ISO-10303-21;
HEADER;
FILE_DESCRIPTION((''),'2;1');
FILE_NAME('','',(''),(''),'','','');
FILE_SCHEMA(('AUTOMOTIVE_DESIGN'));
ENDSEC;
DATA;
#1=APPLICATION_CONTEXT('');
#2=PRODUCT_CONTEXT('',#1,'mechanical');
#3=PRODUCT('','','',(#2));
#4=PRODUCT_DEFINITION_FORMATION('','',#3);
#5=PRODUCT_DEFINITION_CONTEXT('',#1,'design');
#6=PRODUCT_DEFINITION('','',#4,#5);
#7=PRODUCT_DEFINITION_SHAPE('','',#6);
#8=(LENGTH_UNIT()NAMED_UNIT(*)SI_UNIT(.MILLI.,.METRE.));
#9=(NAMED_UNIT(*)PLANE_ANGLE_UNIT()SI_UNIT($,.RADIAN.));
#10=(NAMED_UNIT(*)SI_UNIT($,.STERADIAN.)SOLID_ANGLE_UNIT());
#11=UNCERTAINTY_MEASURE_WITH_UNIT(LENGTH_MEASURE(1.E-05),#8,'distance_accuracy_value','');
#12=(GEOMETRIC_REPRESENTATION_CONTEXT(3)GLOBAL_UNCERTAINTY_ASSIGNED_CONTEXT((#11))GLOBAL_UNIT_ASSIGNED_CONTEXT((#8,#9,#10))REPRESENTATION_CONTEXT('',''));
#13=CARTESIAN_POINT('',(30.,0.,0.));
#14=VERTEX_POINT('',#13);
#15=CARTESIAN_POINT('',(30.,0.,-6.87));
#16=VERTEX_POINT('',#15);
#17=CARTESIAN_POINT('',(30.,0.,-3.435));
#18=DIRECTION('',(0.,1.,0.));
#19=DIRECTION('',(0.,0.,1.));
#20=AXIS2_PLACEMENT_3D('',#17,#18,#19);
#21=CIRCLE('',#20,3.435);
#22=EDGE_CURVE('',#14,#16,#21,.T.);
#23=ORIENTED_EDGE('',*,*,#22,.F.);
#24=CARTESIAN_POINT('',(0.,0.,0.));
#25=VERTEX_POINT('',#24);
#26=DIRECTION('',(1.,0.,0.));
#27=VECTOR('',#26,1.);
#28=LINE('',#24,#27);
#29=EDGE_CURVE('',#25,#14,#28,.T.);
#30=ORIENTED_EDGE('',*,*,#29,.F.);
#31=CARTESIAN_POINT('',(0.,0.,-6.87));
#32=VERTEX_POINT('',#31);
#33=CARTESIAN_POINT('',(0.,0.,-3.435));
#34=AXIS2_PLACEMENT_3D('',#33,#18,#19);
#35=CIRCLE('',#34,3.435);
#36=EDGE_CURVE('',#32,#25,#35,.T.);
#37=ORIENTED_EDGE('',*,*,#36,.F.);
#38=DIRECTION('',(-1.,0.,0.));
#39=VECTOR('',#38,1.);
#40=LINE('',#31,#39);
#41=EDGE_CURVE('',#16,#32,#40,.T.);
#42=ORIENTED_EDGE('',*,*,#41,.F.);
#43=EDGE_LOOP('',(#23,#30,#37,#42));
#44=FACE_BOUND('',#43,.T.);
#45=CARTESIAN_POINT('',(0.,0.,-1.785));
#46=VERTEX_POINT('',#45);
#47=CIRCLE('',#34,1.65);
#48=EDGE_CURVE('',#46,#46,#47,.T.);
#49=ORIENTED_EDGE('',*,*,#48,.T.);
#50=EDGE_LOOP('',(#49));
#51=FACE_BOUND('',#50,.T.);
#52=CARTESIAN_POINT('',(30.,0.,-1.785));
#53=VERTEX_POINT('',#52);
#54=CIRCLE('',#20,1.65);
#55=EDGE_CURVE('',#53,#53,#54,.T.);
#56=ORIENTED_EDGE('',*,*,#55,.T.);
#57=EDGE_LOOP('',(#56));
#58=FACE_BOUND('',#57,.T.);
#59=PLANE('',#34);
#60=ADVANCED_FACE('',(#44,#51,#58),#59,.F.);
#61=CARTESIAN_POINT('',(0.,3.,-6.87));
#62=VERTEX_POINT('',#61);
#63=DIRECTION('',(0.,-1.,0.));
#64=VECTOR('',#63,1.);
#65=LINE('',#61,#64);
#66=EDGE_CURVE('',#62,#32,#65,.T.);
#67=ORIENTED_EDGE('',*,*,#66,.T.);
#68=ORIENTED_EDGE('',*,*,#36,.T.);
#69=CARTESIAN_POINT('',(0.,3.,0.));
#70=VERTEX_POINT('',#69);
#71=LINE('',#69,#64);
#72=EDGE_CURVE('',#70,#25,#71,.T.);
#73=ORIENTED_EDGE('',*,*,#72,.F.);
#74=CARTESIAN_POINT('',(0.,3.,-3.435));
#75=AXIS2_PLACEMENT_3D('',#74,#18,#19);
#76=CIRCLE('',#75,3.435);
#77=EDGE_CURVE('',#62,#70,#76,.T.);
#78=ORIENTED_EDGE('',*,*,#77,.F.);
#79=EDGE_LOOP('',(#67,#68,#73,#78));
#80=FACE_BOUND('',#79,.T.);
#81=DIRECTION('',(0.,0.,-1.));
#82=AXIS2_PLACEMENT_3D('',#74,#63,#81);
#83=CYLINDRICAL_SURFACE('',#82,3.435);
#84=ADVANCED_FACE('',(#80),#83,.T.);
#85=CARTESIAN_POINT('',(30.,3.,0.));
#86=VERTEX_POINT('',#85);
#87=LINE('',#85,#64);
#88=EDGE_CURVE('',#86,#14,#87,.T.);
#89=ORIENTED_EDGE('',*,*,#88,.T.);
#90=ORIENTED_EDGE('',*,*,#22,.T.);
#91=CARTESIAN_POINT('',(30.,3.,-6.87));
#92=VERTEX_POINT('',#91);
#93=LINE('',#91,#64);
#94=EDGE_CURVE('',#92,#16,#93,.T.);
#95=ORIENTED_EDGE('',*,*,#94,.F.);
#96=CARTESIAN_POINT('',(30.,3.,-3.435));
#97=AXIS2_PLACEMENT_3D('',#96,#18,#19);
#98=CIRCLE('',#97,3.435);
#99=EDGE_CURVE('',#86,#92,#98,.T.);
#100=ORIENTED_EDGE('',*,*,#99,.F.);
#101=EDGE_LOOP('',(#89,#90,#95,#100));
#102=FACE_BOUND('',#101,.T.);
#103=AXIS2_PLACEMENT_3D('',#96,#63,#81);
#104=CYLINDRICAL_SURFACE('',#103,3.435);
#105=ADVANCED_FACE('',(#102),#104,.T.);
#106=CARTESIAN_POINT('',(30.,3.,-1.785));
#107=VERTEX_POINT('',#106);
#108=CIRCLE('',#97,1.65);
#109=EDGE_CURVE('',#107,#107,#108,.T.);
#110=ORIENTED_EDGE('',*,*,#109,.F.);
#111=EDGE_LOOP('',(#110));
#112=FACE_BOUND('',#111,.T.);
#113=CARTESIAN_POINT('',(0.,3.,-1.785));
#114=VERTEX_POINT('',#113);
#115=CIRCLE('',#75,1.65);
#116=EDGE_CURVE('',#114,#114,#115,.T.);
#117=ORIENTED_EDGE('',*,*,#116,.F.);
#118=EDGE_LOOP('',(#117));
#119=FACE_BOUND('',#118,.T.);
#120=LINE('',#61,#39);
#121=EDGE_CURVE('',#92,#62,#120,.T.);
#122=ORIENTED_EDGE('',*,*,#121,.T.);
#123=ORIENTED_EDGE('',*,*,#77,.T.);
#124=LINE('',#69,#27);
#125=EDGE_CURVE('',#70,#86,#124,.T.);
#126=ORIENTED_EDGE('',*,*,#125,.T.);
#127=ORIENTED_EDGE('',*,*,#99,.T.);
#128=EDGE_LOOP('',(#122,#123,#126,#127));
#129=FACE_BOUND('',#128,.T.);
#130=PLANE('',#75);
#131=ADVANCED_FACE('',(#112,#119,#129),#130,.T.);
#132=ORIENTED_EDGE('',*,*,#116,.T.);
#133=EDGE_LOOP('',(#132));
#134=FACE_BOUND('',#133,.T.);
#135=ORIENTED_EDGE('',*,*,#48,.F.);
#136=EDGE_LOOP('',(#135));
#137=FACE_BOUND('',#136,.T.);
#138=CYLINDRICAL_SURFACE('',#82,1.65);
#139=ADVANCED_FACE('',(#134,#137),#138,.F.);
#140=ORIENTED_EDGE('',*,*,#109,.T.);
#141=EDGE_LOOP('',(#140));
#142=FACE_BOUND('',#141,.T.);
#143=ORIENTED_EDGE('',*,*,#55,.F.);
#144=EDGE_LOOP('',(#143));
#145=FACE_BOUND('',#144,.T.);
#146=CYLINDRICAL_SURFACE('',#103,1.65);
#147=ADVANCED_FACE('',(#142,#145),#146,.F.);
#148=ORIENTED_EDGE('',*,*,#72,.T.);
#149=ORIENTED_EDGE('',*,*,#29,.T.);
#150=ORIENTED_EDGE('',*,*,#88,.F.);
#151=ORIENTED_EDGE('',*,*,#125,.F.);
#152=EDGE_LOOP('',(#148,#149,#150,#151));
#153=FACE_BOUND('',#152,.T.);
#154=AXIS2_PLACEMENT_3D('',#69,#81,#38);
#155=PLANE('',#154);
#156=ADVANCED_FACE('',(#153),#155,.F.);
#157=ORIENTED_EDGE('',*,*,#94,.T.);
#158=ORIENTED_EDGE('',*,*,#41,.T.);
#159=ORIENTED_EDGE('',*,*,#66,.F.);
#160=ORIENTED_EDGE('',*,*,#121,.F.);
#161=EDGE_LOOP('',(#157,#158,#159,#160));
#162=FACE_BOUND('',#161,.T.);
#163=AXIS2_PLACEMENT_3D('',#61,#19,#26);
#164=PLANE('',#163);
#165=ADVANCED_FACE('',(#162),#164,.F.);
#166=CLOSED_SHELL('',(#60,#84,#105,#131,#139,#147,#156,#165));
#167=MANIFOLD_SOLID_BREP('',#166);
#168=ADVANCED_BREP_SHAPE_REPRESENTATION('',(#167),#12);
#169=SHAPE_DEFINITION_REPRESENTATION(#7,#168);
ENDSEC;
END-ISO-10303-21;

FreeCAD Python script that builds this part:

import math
import FreeCAD as App
import Part
import Sketcher
from FreeCAD import Vector

doc = App.newDocument("Part")
body = doc.addObject("PartDesign::Body", "Body")

sketch1 = body.newObject("Sketcher::SketchObject", "Sketch")
sketch1.AttachmentSupport = (doc.getObject("XZ_Plane"), [""])
sketch1.MapMode = "FlatFace"
sketch1.addGeometry([
    Part.LineSegment(Vector(0, 0, 0), Vector(30, 0, 0)),
    Part.ArcOfCircle(Part.Circle(Vector(30, -3.4, 0), Vector(0, 0, 1), 3.4), math.radians(-90), math.radians(90)),
    Part.LineSegment(Vector(30, -6.9, 0), Vector(0, -6.9, 0)),
    Part.ArcOfCircle(Part.Circle(Vector(0, -3.4, 0), Vector(0, 0, 1), 3.4), math.radians(90), math.radians(270)),
    Part.Circle(Vector(0, -3.4, 0), Vector(0, 0, 1), 1.6),
    Part.Circle(Vector(30, -3.4, 0), Vector(0, 0, 1), 1.6),
], False)
sketch1.addConstraint([
    Sketcher.Constraint("Tangent", 0, 2, 1, 2),
    Sketcher.Constraint("Tangent", 1, 1, 2, 1),
    Sketcher.Constraint("Tangent", 2, 2, 3, 2),
    Sketcher.Constraint("Tangent", 3, 1, 0, 1),
    Sketcher.Constraint("Horizontal", 0),
    Sketcher.Constraint("Horizontal", 2),
    Sketcher.Constraint("Coincident", 3, 1, -1, 1),
    Sketcher.Constraint("Coincident", 4, 3, 3, 3),
    Sketcher.Constraint("Coincident", 5, 3, 1, 3),
    Sketcher.Constraint("Equal", 4, 5),
    Sketcher.Constraint("Diameter", 4, 3.3),
    Sketcher.Constraint("DistanceX", 0, 1, 0, 2, 30.0),
    Sketcher.Constraint("Radius", 1, 3.435),
])
pad1 = body.newObject("PartDesign::Pad", "Pad")
pad1.Profile = sketch1
pad1.Length = 3
pad1.Reversed = True

doc.recompute()
